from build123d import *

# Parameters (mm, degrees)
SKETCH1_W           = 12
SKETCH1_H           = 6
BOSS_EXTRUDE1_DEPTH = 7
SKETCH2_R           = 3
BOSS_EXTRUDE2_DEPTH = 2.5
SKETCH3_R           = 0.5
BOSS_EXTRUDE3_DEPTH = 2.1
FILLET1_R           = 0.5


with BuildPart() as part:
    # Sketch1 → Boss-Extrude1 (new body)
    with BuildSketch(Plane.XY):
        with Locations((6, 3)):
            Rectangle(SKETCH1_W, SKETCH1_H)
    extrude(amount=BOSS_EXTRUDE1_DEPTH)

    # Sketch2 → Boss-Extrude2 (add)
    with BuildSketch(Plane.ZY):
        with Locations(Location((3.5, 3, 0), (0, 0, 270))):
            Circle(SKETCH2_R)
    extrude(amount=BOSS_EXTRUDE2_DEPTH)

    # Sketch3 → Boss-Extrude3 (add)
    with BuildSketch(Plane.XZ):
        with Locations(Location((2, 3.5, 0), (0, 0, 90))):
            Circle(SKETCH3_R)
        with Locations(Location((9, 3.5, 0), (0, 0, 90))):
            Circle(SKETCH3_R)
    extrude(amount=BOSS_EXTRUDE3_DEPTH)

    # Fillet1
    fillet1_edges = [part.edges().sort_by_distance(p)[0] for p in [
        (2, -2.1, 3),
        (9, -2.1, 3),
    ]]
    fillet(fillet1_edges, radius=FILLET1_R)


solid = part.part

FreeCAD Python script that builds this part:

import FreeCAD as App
import Part
import Sketcher
from FreeCAD import Vector


def edges_at(feature, points):
    """Names of the edges that pass closest to the given points."""
    edges = feature.Shape.Edges
    near = lambda p: min(range(len(edges)), key=lambda i: edges[i].distToShape(Part.Vertex(*p))[0])
    return sorted({f"Edge{near(p) + 1}" for p in points})


def add_polygon(sketch, points):
    """Adds a closed chain of lines whose ends are joined by coincident constraints."""
    first, n = sketch.GeometryCount, len(points)
    for a, b in zip(points, points[1:] + points[:1]):
        sketch.addGeometry(Part.LineSegment(App.Vector(*a, 0), App.Vector(*b, 0)), False)
    for i in range(n):
        sketch.addConstraint(Sketcher.Constraint("Coincident", first + i, 2, first + (i + 1) % n, 1))

doc = App.newDocument("Part")
params = doc.addObject("Spreadsheet::Sheet", "Params")
for row, (alias, value) in enumerate([
    ("sketch1_width", "12 mm"),
    ("sketch1_height", "6 mm"),
    ("pad1_length", "7 mm"),
    ("sketch2_diameter", "6 mm"),
    ("pad2_length", "2.5 mm"),
    ("sketch3_diameter", "1 mm"),
    ("pad3_length", "2.1 mm"),
    ("fillet_radius", "0.5 mm"),
], start=1):
    params.set(f"A{row}", alias)
    params.set(f"B{row}", "=" + value)
    params.setAlias(f"B{row}", alias)

body = doc.addObject("PartDesign::Body", "Body")

# Sketch on XY plane
sketch1 = body.newObject("Sketcher::SketchObject", "Sketch")
sketch1.AttachmentSupport = (doc.getObject("XY_Plane"), [""])
sketch1.MapMode = "FlatFace"
add_polygon(sketch1, [(0, 6), (0, 0), (12, 0), (12, 6)])  # lines 0-3
sketch1.addConstraint([
    Sketcher.Constraint("Vertical", 0),
    Sketcher.Constraint("Horizontal", 1),
    Sketcher.Constraint("Vertical", 2),
    Sketcher.Constraint("Horizontal", 3),
    Sketcher.Constraint("Coincident", 0, 2, -1, 1),
    Sketcher.Constraint("DistanceX", 1, 1, 1, 2, 12.0),
    Sketcher.Constraint("DistanceY", 0, 2, 0, 1, 6.0),
])
sketch1.setExpression("Constraints[9]", "Params.sketch1_width")
sketch1.setExpression("Constraints[10]", "Params.sketch1_height")
pad1 = body.newObject("PartDesign::Pad", "Pad")
pad1.Profile = sketch1
pad1.setExpression("Length", "Params.pad1_length")

# Sketch on YZ plane
sketch2 = body.newObject("Sketcher::SketchObject", "Sketch001")
sketch2.AttachmentSupport = (doc.getObject("YZ_Plane"), [""])
sketch2.MapMode = "FlatFace"
sketch2.addGeometry(Part.Circle(Vector(3, 3.5, 0), Vector(0, 0, 1), 3), False)
sketch2.addConstraint([
    Sketcher.Constraint("Diameter", 0, 6.0),
    Sketcher.Constraint("DistanceX", -1, 1, 0, 3, 3.0),
    Sketcher.Constraint("DistanceY", -1, 1, 0, 3, 3.5),
])
sketch2.setExpression("Constraints[0]", "Params.sketch2_diameter")
pad2 = body.newObject("PartDesign::Pad", "Pad001")
pad2.Profile = sketch2
pad2.setExpression("Length", "Params.pad2_length")
pad2.Reversed = True

# Sketch on XZ plane
sketch3 = body.newObject("Sketcher::SketchObject", "Sketch002")
sketch3.AttachmentSupport = (doc.getObject("XZ_Plane"), [""])
sketch3.MapMode = "FlatFace"
sketch3.addGeometry([
    Part.Circle(Vector(2, 3.5, 0), Vector(0, 0, 1), 0.5),
    Part.Circle(Vector(9, 3.5, 0), Vector(0, 0, 1), 0.5),
], False)
sketch3.addConstraint([
    Sketcher.Constraint("Equal", 0, 1),
    Sketcher.Constraint("Horizontal", 0, 3, 1, 3),
    Sketcher.Constraint("Diameter", 0, 1.0),
    Sketcher.Constraint("DistanceX", -1, 1, 0, 3, 2.0),
    Sketcher.Constraint("DistanceX", -1, 1, 1, 3, 9.0),
    Sketcher.Constraint("DistanceY", -1, 1, 0, 3, 3.5),
])
sketch3.setExpression("Constraints[2]", "Params.sketch3_diameter")
pad3 = body.newObject("PartDesign::Pad", "Pad002")
pad3.Profile = sketch3
pad3.setExpression("Length", "Params.pad3_length")
doc.recompute()

fillet = body.newObject("PartDesign::Fillet", "Fillet")
fillet.Base = (pad3, edges_at(pad3, [(2, -2.1, 3), (9, -2.1, 3)]))
fillet.setExpression("Radius", "Params.fillet_radius")

doc.recompute()
